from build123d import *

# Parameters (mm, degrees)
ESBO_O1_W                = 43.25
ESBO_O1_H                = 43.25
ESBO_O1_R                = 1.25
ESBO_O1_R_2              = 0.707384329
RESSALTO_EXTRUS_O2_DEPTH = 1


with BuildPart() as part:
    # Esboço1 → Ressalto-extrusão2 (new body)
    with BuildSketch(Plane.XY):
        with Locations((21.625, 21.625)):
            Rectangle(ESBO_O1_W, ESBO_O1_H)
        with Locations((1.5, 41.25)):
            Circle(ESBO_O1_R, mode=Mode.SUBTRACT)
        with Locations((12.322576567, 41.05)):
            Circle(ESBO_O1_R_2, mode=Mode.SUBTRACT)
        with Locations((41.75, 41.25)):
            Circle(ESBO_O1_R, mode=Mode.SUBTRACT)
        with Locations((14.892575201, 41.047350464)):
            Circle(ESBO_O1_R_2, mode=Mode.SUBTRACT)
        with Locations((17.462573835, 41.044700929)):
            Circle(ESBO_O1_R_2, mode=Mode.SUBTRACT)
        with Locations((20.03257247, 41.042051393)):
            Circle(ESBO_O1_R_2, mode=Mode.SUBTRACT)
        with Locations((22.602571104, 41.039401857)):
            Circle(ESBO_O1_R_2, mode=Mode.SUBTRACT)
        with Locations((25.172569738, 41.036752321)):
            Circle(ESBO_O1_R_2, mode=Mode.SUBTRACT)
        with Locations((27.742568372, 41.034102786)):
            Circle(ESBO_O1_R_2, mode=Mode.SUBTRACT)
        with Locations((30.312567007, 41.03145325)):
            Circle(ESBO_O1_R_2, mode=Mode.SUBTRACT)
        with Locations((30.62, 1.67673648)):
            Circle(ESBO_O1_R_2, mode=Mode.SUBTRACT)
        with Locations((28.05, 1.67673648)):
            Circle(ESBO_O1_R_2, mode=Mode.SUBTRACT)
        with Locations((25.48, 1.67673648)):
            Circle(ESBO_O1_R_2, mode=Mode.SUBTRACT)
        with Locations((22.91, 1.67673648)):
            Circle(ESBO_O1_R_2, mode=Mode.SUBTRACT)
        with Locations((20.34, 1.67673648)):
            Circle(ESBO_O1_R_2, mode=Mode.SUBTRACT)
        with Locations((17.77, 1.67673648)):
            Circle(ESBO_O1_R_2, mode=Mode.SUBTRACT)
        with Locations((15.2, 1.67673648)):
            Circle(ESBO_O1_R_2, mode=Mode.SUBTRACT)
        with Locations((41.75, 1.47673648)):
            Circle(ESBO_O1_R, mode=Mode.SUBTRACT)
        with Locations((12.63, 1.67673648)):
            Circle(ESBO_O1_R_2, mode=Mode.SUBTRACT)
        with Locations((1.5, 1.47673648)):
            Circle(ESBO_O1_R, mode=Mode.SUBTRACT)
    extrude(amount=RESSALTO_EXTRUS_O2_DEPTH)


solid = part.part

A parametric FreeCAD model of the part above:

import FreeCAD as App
import Part
import Sketcher


def add_polygon(sketch, points):
    """Adds a closed chain of lines whose ends are joined by coincident constraints."""
    first, n = sketch.GeometryCount, len(points)
    for a, b in zip(points, points[1:] + points[:1]):
        sketch.addGeometry(Part.LineSegment(App.Vector(*a, 0), App.Vector(*b, 0)), False)
    for i in range(n):
        sketch.addConstraint(Sketcher.Constraint("Coincident", first + i, 2, first + (i + 1) % n, 1))

doc = App.newDocument("Part")
body = doc.addObject("PartDesign::Body", "Body")

# Sketch on XY plane
sketch1 = doc.addObject("Sketcher::SketchObject", "Sketch")
body.addObject(sketch1)
sketch1.AttachmentSupport = (doc.XY_Plane, [""])
sketch1.MapMode = "FlatFace"
add_polygon(sketch1, [(0, 43.2), (0, 0), (43.2, 0), (43.2, 43.2)])  # lines 0-3
sketch1.addGeometry(Part.Circle(App.Vector(1.5, 1.5, 0), App.Vector(0, 0, 1), 1.2), False)  # 4
sketch1.addGeometry(Part.Circle(App.Vector(12.6, 1.7, 0), App.Vector(0, 0, 1), 0.7), False)  # 5
sketch1.addGeometry(Part.Circle(App.Vector(15.2, 1.7, 0), App.Vector(0, 0, 1), 0.7), False)  # 6
sketch1.addGeometry(Part.Circle(App.Vector(17.8, 1.7, 0), App.Vector(0, 0, 1), 0.7), False)  # 7
sketch1.addGeometry(Part.Circle(App.Vector(20.3, 1.7, 0), App.Vector(0, 0, 1), 0.7), False)  # 8
sketch1.addGeometry(Part.Circle(App.Vector(22.9, 1.7, 0), App.Vector(0, 0, 1), 0.7), False)  # 9
sketch1.addGeometry(Part.Circle(App.Vector(25.5, 1.7, 0), App.Vector(0, 0, 1), 0.7), False)  # 10
sketch1.addGeometry(Part.Circle(App.Vector(28.1, 1.7, 0), App.Vector(0, 0, 1), 0.7), False)  # 11
sketch1.addGeometry(Part.Circle(App.Vector(30.6, 1.7, 0), App.Vector(0, 0, 1), 0.7), False)  # 12
sketch1.addGeometry(Part.Circle(App.Vector(41.8, 1.5, 0), App.Vector(0, 0, 1), 1.2), False)  # 13
sketch1.addGeometry(Part.Circle(App.Vector(1.5, 41.2, 0), App.Vector(0, 0, 1), 1.2), False)  # 14
sketch1.addGeometry(Part.Circle(App.Vector(12.3, 41, 0), App.Vector(0, 0, 1), 0.7), False)  # 15
sketch1.addGeometry(Part.Circle(App.Vector(14.9, 41, 0), App.Vector(0, 0, 1), 0.7), False)  # 16
sketch1.addGeometry(Part.Circle(App.Vector(17.5, 41, 0), App.Vector(0, 0, 1), 0.7), False)  # 17
sketch1.addGeometry(Part.Circle(App.Vector(20, 41, 0), App.Vector(0, 0, 1), 0.7), False)  # 18
sketch1.addGeometry(Part.Circle(App.Vector(22.6, 41, 0), App.Vector(0, 0, 1), 0.7), False)  # 19
sketch1.addGeometry(Part.Circle(App.Vector(25.2, 41, 0), App.Vector(0, 0, 1), 0.7), False)  # 20
sketch1.addGeometry(Part.Circle(App.Vector(27.7, 41, 0), App.Vector(0, 0, 1), 0.7), False)  # 21
sketch1.addGeometry(Part.Circle(App.Vector(30.3, 41, 0), App.Vector(0, 0, 1), 0.7), False)  # 22
sketch1.addGeometry(Part.Circle(App.Vector(41.8, 41.2, 0), App.Vector(0, 0, 1), 1.2), False)  # 23
sketch1.addConstraint([
    Sketcher.Constraint("Vertical", 0),
    Sketcher.Constraint("Horizontal", 1),
    Sketcher.Constraint("Vertical", 2),
    Sketcher.Constraint("Horizontal", 3),
    Sketcher.Constraint("Coincident", 0, 2, -1, 1),
    Sketcher.Constraint("Equal", 5, 6),
    Sketcher.Constraint("Equal", 6, 7),
    Sketcher.Constraint("Equal", 7, 8),
    Sketcher.Constraint("Equal", 8, 9),
    Sketcher.Constraint("Equal", 9, 10),
    Sketcher.Constraint("Equal", 10, 11),
    Sketcher.Constraint("Equal", 11, 12),
    Sketcher.Constraint("Equal", 4, 13),
    Sketcher.Constraint("Equal", 13, 14),
    Sketcher.Constraint("Equal", 12, 15),
    Sketcher.Constraint("Equal", 15, 16),
    Sketcher.Constraint("Equal", 16, 17),
    Sketcher.Constraint("Equal", 17, 18),
    Sketcher.Constraint("Equal", 18, 19),
    Sketcher.Constraint("Equal", 19, 20),
    Sketcher.Constraint("Equal", 20, 21),
    Sketcher.Constraint("Equal", 21, 22),
    Sketcher.Constraint("Equal", 14, 23),
    Sketcher.Constraint("Horizontal", 5, 3, 6, 3),
    Sketcher.Constraint("Horizontal", 6, 3, 7, 3),
    Sketcher.Constraint("Horizontal", 7, 3, 8, 3),
    Sketcher.Constraint("Horizontal", 8, 3, 9, 3),
    Sketcher.Constraint("Horizontal", 9, 3, 10, 3),
    Sketcher.Constraint("Horizontal", 10, 3, 11, 3),
    Sketcher.Constraint("Horizontal", 11, 3, 12, 3),
    Sketcher.Constraint("Horizontal", 4, 3, 13, 3),
    Sketcher.Constraint("Horizontal", 14, 3, 23, 3),
    Sketcher.Constraint("Vertical", 4, 3, 14, 3),
    Sketcher.Constraint("Vertical", 13, 3, 23, 3),
    Sketcher.Constraint("Equal", 3, 0),
    Sketcher.Constraint("Diameter", 4, 2.5),
    Sketcher.Constraint("DistanceY", 23, 3, 2, 2, 2.0),
    Sketcher.Constraint("DistanceX", 1, 1, 1, 2, 43.25),
    Sketcher.Constraint("DistanceX", -1, 1, 4, 3, 1.5),
    Sketcher.Constraint("DistanceX", -1, 1, 6, 3, 15.2),
    Sketcher.Constraint("DistanceY", 4, 3, 5, 3, 0.2),
    Sketcher.Constraint("DistanceX", 11, 3, 13, 3, 13.7),
    Sketcher.Constraint("DistanceY", 15, 3, 14, 3, 0.2),
    Sketcher.Constraint("DistanceX", 13, 3, 1, 2, 1.5),
    Sketcher.Constraint("Diameter", 5, 1.414769),
    Sketcher.Constraint("DistanceX", -1, 1, 5, 3, 12.63),
    Sketcher.Constraint("DistanceX", -1, 1, 7, 3, 17.77),
    Sketcher.Constraint("DistanceX", -1, 1, 8, 3, 20.34),
    Sketcher.Constraint("DistanceX", -1, 1, 9, 3, 22.91),
    Sketcher.Constraint("DistanceX", -1, 1, 10, 3, 25.48),
    Sketcher.Constraint("DistanceX", -1, 1, 12, 3, 30.62),
    Sketcher.Constraint("DistanceX", 15, 3, 16, 3, 2.569999),
    Sketcher.Constraint("DistanceX", 16, 3, 17, 3, 2.569999),
    Sketcher.Constraint("DistanceX", 17, 3, 18, 3, 2.569999),
    Sketcher.Constraint("DistanceX", 18, 3, 19, 3, 2.569999),
    Sketcher.Constraint("DistanceX", 19, 3, 20, 3, 2.569999),
    Sketcher.Constraint("DistanceX", 20, 3, 21, 3, 2.569999),
    Sketcher.Constraint("DistanceX", 21, 3, 22, 3, 2.569999),
    Sketcher.Constraint("DistanceY", -1, 1, 17, 3, 41.044701),
    Sketcher.Constraint("DistanceY", -1, 1, 19, 3, 41.039402),
    Sketcher.Constraint("DistanceY", 18, 3, 16, 3, 0.005299),
    Sketcher.Constraint("DistanceY", 20, 3, 18, 3, 0.005299),
    Sketcher.Constraint("DistanceY", 21, 3, 19, 3, 0.005299),
    Sketcher.Constraint("DistanceY", 22, 3, 20, 3, 0.005299),
    Sketcher.Constraint("DistanceY", -1, 1, 16, 3, 41.04735),
    Sketcher.Constraint("DistanceX", -1, 1, 19, 3, 22.602571),
    Sketcher.Constraint("DistanceY", -1, 1, 4, 3, 1.476736),
])
pad1 = doc.addObject("PartDesign::Pad", "Pad")
body.addObject(pad1)
pad1.Profile = sketch1
pad1.Length = 1

doc.recompute()
